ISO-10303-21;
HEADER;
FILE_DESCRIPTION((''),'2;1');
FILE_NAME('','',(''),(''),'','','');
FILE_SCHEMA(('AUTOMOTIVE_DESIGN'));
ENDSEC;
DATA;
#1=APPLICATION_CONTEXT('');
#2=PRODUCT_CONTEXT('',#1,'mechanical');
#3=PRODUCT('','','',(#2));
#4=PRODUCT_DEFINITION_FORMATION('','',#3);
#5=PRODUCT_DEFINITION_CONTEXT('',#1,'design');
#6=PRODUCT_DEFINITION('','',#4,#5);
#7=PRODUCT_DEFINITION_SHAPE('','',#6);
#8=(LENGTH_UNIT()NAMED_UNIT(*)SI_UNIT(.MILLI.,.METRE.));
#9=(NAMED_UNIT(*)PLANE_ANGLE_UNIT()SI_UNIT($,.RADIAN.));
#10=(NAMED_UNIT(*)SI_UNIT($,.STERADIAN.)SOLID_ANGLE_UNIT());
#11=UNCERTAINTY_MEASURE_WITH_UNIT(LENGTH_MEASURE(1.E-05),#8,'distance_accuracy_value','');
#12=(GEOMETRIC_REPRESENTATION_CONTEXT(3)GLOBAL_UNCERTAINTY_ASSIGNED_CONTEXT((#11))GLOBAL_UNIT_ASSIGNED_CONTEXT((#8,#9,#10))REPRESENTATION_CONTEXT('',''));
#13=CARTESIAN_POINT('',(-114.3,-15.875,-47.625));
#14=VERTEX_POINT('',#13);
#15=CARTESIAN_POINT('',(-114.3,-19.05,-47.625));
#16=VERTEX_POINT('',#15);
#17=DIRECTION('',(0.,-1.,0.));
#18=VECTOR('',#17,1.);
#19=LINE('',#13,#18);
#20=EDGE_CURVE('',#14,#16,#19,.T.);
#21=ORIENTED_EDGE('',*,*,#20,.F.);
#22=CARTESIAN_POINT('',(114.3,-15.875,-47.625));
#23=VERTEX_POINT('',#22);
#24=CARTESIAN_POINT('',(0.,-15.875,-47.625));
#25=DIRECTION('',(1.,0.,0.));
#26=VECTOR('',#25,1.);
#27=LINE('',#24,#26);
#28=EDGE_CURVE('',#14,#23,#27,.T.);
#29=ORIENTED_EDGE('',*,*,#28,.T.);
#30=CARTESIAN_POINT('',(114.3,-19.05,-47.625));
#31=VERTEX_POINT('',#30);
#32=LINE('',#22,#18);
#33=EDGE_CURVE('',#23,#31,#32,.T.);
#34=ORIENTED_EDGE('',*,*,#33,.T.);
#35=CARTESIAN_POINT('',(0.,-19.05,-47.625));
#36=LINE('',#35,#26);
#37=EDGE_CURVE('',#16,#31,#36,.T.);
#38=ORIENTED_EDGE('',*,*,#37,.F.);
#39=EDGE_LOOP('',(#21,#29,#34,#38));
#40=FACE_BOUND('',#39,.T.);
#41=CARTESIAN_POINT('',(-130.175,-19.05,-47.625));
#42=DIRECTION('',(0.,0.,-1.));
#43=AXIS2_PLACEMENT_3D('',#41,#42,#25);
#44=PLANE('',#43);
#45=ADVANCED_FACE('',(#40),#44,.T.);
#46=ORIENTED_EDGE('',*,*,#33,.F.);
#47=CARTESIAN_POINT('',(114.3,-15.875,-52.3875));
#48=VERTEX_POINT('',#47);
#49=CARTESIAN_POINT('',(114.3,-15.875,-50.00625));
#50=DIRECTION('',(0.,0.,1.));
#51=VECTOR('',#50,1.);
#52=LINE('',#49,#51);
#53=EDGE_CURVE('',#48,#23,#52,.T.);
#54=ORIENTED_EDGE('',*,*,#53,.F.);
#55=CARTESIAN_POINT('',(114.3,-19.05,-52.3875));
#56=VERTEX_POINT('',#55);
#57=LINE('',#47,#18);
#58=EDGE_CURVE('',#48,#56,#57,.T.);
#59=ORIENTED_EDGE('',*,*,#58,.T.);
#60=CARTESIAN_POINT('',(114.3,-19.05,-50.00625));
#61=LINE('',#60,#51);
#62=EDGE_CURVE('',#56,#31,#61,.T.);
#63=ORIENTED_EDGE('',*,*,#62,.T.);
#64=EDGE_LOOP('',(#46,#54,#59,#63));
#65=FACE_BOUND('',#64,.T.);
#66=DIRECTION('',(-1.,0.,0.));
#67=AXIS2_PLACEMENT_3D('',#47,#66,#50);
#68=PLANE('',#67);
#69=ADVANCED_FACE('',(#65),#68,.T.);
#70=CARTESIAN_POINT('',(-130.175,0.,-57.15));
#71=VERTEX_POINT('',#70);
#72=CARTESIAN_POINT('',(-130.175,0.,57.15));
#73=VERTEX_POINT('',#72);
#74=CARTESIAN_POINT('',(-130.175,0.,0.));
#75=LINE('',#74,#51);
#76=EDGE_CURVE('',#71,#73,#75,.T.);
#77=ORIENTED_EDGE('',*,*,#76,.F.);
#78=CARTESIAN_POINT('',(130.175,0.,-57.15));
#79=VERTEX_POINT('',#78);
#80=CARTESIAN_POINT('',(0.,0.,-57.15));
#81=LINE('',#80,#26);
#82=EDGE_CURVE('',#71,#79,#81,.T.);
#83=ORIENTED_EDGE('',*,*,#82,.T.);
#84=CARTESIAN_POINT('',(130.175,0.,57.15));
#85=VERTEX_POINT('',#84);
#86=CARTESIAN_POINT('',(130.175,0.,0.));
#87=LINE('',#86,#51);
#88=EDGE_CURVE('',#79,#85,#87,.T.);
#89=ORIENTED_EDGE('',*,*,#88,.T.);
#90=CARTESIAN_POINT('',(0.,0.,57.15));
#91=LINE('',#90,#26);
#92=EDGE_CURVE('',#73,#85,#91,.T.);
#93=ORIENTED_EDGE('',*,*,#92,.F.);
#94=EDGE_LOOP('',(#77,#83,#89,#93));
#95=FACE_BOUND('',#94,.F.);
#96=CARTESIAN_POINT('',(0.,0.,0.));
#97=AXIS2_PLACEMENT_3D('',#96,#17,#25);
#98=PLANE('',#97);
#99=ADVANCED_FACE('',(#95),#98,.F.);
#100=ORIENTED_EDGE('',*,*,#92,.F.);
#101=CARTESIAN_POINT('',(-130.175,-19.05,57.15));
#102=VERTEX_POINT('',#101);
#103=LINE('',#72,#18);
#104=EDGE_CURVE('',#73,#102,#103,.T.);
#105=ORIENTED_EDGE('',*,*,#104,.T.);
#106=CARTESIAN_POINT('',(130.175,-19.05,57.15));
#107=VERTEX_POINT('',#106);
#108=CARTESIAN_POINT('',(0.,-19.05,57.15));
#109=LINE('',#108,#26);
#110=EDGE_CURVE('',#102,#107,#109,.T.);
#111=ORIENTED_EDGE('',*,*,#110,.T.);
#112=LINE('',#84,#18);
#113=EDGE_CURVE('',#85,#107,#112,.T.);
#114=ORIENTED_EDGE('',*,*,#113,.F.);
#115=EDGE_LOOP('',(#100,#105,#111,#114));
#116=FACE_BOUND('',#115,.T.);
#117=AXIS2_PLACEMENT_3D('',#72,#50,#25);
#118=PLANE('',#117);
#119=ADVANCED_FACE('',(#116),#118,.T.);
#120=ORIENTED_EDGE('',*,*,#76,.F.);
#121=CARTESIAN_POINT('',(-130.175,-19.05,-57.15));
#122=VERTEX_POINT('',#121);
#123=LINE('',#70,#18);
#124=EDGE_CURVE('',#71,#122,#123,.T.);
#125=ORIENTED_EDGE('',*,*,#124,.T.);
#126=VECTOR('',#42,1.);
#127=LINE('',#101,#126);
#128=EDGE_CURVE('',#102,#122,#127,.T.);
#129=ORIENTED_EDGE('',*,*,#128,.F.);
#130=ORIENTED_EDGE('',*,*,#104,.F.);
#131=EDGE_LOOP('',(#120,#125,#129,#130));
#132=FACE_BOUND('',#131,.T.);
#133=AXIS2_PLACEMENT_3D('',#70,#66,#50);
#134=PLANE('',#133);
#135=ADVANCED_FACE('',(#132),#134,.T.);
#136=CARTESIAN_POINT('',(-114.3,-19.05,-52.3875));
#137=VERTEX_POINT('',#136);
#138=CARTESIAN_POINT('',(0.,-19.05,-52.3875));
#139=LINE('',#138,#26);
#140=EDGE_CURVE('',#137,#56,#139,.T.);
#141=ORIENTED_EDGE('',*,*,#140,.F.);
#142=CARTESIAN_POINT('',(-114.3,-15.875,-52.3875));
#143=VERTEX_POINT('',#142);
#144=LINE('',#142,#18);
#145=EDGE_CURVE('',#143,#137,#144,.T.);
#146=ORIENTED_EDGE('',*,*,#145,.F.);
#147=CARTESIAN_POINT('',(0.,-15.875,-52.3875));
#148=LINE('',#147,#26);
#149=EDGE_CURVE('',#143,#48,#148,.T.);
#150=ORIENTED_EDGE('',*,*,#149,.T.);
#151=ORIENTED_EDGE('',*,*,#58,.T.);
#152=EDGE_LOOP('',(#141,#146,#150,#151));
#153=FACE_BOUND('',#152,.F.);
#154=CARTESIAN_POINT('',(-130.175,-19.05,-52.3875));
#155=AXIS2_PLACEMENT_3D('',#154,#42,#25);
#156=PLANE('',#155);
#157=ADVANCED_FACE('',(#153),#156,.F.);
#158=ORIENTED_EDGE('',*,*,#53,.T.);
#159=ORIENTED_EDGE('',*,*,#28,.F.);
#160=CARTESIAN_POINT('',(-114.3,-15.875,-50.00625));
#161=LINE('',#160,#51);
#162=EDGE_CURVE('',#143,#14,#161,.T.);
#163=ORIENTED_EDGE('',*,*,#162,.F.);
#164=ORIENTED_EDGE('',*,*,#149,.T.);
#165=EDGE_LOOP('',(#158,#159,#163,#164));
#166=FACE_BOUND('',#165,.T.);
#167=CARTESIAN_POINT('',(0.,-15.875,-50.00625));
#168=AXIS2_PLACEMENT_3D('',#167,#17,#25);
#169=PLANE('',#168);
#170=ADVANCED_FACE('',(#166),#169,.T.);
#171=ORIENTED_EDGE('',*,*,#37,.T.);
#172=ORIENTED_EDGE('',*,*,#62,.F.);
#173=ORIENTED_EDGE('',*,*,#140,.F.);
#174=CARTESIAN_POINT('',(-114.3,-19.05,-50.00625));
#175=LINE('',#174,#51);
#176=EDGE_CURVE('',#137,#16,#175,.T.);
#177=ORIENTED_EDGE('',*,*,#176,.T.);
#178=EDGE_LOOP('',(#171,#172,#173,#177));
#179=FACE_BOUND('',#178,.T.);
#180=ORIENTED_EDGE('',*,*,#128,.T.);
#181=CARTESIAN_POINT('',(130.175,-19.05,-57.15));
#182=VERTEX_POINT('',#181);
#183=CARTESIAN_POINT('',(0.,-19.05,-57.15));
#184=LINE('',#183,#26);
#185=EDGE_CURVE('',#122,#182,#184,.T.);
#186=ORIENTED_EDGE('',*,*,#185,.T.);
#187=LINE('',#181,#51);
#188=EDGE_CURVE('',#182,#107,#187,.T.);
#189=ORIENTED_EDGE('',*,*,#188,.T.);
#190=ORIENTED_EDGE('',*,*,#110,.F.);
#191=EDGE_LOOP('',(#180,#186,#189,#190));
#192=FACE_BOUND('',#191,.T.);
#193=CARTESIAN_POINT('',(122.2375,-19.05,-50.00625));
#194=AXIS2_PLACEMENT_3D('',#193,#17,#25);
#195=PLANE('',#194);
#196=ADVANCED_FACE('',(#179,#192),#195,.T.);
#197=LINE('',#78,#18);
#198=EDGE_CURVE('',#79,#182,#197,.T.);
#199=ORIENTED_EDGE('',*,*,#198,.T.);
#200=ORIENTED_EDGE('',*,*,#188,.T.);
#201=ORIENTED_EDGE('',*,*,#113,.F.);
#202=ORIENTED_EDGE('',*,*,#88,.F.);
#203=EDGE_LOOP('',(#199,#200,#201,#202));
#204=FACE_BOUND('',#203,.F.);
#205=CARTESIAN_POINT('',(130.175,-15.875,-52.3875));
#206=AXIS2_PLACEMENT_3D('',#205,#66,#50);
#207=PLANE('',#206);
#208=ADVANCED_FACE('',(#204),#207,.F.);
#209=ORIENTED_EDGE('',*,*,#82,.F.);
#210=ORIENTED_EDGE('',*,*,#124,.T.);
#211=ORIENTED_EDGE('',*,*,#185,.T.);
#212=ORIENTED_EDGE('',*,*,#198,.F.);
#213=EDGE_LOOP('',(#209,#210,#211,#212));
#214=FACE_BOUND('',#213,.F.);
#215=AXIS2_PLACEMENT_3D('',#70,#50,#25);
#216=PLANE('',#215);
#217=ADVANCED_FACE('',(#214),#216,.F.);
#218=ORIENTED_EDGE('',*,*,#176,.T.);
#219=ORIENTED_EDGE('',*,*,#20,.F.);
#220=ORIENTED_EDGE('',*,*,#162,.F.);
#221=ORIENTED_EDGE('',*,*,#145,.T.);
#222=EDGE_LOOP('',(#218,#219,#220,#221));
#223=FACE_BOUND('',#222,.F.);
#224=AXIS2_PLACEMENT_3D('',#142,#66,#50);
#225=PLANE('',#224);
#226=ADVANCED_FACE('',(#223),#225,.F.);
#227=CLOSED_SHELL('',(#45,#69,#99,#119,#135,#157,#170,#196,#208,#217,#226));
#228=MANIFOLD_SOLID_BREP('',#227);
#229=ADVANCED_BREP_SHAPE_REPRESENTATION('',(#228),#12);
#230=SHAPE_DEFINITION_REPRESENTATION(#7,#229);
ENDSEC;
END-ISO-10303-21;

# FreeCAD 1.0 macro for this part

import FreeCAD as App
import Part
import Sketcher
Q = App.Units.Quantity


def add_polygon(sketch, points):
    """Adds a closed chain of lines whose ends are joined by coincident constraints."""
    first, n = sketch.GeometryCount, len(points)
    for a, b in zip(points, points[1:] + points[:1]):
        sketch.addGeometry(Part.LineSegment(App.Vector(*a, 0), App.Vector(*b, 0)), False)
    for i in range(n):
        sketch.addConstraint(Sketcher.Constraint("Coincident", first + i, 2, first + (i + 1) % n, 1))

doc = App.newDocument("Part")
body = doc.addObject("PartDesign::Body", "Body")

sketch1 = body.newObject("Sketcher::SketchObject", "Sketch")
sketch1.AttachmentSupport = (doc.getObject("XZ_Plane"), [""])
sketch1.MapMode = "FlatFace"
add_polygon(sketch1, [(-130, 57), (-130, -57), (130, -57), (130, 57)])
sketch1.addConstraint([
    Sketcher.Constraint("Vertical", 0),
    Sketcher.Constraint("Horizontal", 1),
    Sketcher.Constraint("Vertical", 2),
    Sketcher.Constraint("Horizontal", 3),
    Sketcher.Constraint("Symmetric", 0, 2, 2, 2, -1, 1),
    Sketcher.Constraint("DistanceY", 0, 2, 0, 1, Q("4.5 in")),
    Sketcher.Constraint("DistanceX", 1, 1, 1, 2, Q("10.25 in")),
])
pad1 = body.newObject("PartDesign::Pad", "Pad")
pad1.Profile = sketch1
pad1.Length = Q("0.75 in")

sketch2 = body.newObject("Sketcher::SketchObject", "Sketch001")
sketch2.AttachmentSupport = (doc.getObject("XZ_Plane"), [""])
sketch2.MapMode = "FlatFace"
sketch2.AttachmentOffset = App.Placement(App.Vector(0, 0, 0.75 * 25.4), App.Rotation())
add_polygon(sketch2, [(-130.2, -47.6), (-130.2, -52.4), (130.2, -52.4), (130.2, -47.6)])
sketch2.addConstraint([
    Sketcher.Constraint("Vertical", 0),
    Sketcher.Constraint("Horizontal", 1),
    Sketcher.Constraint("Vertical", 2),
    Sketcher.Constraint("Horizontal", 3),
    Sketcher.Constraint("DistanceX", 1, 1, 1, 2, Q("10.25 in")),
    Sketcher.Constraint("DistanceY", 0, 2, 0, 1, Q("0.1875 in")),
    Sketcher.Constraint("DistanceX", 0, 2, -1, 1, Q("5.125 in")),
    Sketcher.Constraint("DistanceY", 0, 2, -1, 1, Q("2.0625 in")),
])
pocket1 = body.newObject("PartDesign::Pocket", "Pocket")
pocket1.Profile = sketch2
pocket1.Length = Q("0.125 in")

sketch3 = body.newObject("Sketcher::SketchObject", "Sketch002")
sketch3.AttachmentSupport = (doc.getObject("XZ_Plane"), [""])
sketch3.MapMode = "FlatFace"
sketch3.AttachmentOffset = App.Placement(App.Vector(0, 0, 0.625 * 25.4), App.Rotation())
add_polygon(sketch3, [(114.3, -47.6), (114.3, -52.4), (130.2, -52.4), (130.2, -47.6)])
add_polygon(sketch3, [(-130.2, -47.6), (-130.2, -52.4), (-114.3, -52.4), (-114.3, -47.6)])
sketch3.addConstraint([
    Sketcher.Constraint("Vertical", 0),
    Sketcher.Constraint("Horizontal", 1),
    Sketcher.Constraint("Vertical", 2),
    Sketcher.Constraint("Horizontal", 3),
    Sketcher.Constraint("Vertical", 4),
    Sketcher.Constraint("Horizontal", 5),
    Sketcher.Constraint("Vertical", 6),
    Sketcher.Constraint("Horizontal", 7),
    Sketcher.Constraint("Symmetric", 1, 2, 4, 2, -2),
    Sketcher.Constraint("Symmetric", 3, 2, 6, 2, -2),
    Sketcher.Constraint("DistanceX", 5, 2, 0, 2, Q("9 in")),
    Sketcher.Constraint("DistanceX", 1, 1, 1, 2, Q("0.625 in")),
    Sketcher.Constraint("DistanceY", 0, 2, 0, 1, Q("0.1875 in")),
    Sketcher.Constraint("DistanceY", 0, 2, -1, 1, Q("2.0625 in")),
])
pad2 = body.newObject("PartDesign::Pad", "Pad001")
pad2.Profile = sketch3
pad2.Length = Q("0.125 in")

doc.recompute()
